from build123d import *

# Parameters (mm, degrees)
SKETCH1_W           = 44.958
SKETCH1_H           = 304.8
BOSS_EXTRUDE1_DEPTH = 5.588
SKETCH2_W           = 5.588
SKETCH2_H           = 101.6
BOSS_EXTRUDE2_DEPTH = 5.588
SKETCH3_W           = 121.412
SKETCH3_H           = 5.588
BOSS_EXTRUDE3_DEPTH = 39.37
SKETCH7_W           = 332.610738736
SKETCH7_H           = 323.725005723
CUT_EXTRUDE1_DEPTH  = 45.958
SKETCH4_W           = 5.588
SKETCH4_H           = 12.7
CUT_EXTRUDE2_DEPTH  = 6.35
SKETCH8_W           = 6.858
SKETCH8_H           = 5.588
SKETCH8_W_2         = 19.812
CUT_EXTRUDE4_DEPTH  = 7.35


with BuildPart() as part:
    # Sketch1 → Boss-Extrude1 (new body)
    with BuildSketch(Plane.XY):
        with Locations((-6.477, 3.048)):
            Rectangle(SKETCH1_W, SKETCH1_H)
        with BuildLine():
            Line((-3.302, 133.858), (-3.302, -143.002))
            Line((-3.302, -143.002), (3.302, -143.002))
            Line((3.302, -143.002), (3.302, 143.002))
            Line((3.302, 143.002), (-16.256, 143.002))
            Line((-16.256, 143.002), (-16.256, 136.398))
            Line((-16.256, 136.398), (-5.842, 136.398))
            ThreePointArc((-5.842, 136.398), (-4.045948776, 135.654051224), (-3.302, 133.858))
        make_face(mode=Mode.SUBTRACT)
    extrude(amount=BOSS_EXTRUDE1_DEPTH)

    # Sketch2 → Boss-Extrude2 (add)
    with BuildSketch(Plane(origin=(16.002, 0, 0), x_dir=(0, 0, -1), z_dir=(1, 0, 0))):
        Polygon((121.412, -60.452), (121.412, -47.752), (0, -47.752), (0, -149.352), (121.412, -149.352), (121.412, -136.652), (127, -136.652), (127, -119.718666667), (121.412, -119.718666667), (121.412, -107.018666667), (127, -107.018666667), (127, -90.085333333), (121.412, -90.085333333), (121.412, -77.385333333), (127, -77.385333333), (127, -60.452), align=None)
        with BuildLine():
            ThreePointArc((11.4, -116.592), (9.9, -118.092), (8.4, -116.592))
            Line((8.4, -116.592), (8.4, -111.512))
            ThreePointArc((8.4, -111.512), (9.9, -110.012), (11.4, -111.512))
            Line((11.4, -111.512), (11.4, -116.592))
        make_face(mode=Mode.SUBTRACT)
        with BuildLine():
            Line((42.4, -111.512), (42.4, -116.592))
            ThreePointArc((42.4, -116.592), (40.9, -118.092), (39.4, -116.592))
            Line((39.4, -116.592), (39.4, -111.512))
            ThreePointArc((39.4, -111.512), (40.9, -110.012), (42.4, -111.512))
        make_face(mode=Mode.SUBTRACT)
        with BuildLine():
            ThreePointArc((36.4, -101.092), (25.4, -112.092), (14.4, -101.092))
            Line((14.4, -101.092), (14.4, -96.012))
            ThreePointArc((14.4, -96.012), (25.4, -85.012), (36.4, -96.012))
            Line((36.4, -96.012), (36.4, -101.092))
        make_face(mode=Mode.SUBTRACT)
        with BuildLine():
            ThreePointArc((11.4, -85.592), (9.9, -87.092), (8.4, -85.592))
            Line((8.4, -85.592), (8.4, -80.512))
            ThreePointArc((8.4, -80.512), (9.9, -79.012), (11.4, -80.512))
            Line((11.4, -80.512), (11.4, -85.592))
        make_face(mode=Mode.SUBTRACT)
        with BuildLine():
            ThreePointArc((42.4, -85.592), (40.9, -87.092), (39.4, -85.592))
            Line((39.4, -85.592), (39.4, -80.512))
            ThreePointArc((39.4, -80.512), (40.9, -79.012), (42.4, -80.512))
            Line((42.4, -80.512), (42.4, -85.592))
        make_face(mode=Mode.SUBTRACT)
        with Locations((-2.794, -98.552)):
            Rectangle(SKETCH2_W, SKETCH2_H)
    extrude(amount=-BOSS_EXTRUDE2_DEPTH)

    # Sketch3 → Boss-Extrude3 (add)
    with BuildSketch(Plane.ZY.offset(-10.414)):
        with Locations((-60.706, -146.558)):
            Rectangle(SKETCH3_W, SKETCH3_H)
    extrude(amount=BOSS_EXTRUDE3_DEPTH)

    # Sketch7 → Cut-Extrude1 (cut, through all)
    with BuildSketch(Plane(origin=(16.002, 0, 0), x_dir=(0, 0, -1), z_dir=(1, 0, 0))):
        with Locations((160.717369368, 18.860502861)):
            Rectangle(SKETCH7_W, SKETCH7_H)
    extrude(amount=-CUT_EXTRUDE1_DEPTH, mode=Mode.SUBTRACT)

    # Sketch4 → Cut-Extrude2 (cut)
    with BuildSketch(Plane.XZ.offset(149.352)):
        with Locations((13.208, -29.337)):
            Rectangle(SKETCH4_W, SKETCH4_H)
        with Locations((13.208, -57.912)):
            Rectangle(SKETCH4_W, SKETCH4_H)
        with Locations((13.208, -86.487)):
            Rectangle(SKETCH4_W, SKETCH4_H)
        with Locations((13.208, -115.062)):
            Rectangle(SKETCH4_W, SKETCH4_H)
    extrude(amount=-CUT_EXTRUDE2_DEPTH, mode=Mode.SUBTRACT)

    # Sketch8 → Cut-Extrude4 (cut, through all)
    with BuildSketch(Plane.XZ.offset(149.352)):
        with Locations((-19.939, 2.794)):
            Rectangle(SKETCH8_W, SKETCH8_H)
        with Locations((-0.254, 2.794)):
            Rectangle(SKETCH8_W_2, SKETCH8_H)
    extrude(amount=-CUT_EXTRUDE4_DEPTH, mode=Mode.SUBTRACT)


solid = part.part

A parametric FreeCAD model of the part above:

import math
import FreeCAD as App
import Part
import Sketcher
from FreeCAD import Vector
Q = App.Units.Quantity


def add_polygon(sketch, points):
    """Adds a closed chain of lines whose ends are joined by coincident constraints."""
    first, n = sketch.GeometryCount, len(points)
    for a, b in zip(points, points[1:] + points[:1]):
        sketch.addGeometry(Part.LineSegment(App.Vector(*a, 0), App.Vector(*b, 0)), False)
    for i in range(n):
        sketch.addConstraint(Sketcher.Constraint("Coincident", first + i, 2, first + (i + 1) % n, 1))

doc = App.newDocument("Part")
body = doc.addObject("PartDesign::Body", "Body")

# Sketch on XY plane
sketch1 = doc.addObject("Sketcher::SketchObject", "Sketch")
body.addObject(sketch1)
sketch1.AttachmentSupport = (doc.XY_Plane, [""])
sketch1.MapMode = "FlatFace"
add_polygon(sketch1, [(-29, 155.4), (-29, -149.4), (16, -149.4), (16, 155.4)])  # lines 0-3
sketch1.addGeometry(Part.LineSegment(Vector(-3.3, -143, 0), Vector(-3.3, 133.9, 0)), False)  # 4
sketch1.addGeometry(Part.ArcOfCircle(Part.Circle(Vector(-5.8, 133.9, 0), Vector(0, 0, 1), 2.5), math.radians(0), math.radians(90)), False)  # 5
sketch1.addGeometry(Part.LineSegment(Vector(-5.8, 136.4, 0), Vector(-16.3, 136.4, 0)), False)  # 6
sketch1.addGeometry(Part.LineSegment(Vector(-16.3, 136.4, 0), Vector(-16.3, 143, 0)), False)  # 7
sketch1.addGeometry(Part.LineSegment(Vector(-16.3, 143, 0), Vector(3.3, 143, 0)), False)  # 8
sketch1.addGeometry(Part.LineSegment(Vector(3.3, 143, 0), Vector(3.3, -143, 0)), False)  # 9
sketch1.addGeometry(Part.LineSegment(Vector(3.3, -143, 0), Vector(-3.3, -143, 0)), False)  # 10
sketch1.addConstraint(Sketcher.Constraint("Tangent", 4, 2, 5, 1))
sketch1.addConstraint(Sketcher.Constraint("Tangent", 5, 2, 6, 1))
sketch1.addConstraint(Sketcher.Constraint("Coincident", 6, 2, 7, 1))
sketch1.addConstraint(Sketcher.Constraint("Coincident", 7, 2, 8, 1))
sketch1.addConstraint(Sketcher.Constraint("Coincident", 8, 2, 9, 1))
sketch1.addConstraint(Sketcher.Constraint("Coincident", 9, 2, 10, 1))
sketch1.addConstraint(Sketcher.Constraint("Coincident", 10, 2, 4, 1))
sketch1.addConstraint(Sketcher.Constraint("Vertical", 0))
sketch1.addConstraint(Sketcher.Constraint("Horizontal", 1))
sketch1.addConstraint(Sketcher.Constraint("Vertical", 2))
sketch1.addConstraint(Sketcher.Constraint("Horizontal", 3))
sketch1.addConstraint(Sketcher.Constraint("Vertical", 4))
sketch1.addConstraint(Sketcher.Constraint("Horizontal", 6))
sketch1.addConstraint(Sketcher.Constraint("Vertical", 7))
sketch1.addConstraint(Sketcher.Constraint("Horizontal", 8))
sketch1.addConstraint(Sketcher.Constraint("Vertical", 9))
sketch1.addConstraint(Sketcher.Constraint("Horizontal", 10))
sketch1.addConstraint(Sketcher.Constraint("Symmetric", 8, 2, 10, 2, -1, 1))
sketch1.addConstraint(Sketcher.Constraint("Equal", 10, 7))
sketch1.addConstraint(Sketcher.Constraint("Radius", 5, Q("0.1 in")))
sketch1.addConstraint(Sketcher.Constraint("DistanceY", 0, 2, 0, 1, Q("12 in")))
sketch1.addConstraint(Sketcher.Constraint("DistanceY", 4, 1, 4, 2, Q("10.9 in")))
sketch1.addConstraint(Sketcher.Constraint("DistanceX", 1, 1, 1, 2, Q("1.77 in")))
sketch1.addConstraint(Sketcher.Constraint("DistanceX", 6, 2, 6, 1, Q("0.41 in")))
sketch1.addConstraint(Sketcher.Constraint("DistanceX", 8, 1, 8, 2, Q("0.77 in")))
sketch1.addConstraint(Sketcher.Constraint("DistanceX", 3, 2, 6, 2, Q("0.5 in")))
sketch1.addConstraint(Sketcher.Constraint("DistanceY", 0, 2, -1, 1, Q("5.88 in")))
pad1 = doc.addObject("PartDesign::Pad", "Pad")
body.addObject(pad1)
pad1.Profile = sketch1
pad1.Length = Q("0.22 in")

# Sketch on YZ plane
sketch2 = doc.addObject("Sketcher::SketchObject", "Sketch001")
body.addObject(sketch2)
sketch2.AttachmentSupport = (doc.YZ_Plane, [""])
sketch2.MapMode = "FlatFace"
sketch2.AttachmentOffset = App.Placement(Vector(0, 0, 0.63 * 25.4), App.Rotation())
add_polygon(sketch2, [(-60.5, -121.4), (-47.8, -121.4), (-47.8, 5.6), (-149.4, 5.6), (-149.4, -121.4), (-136.7, -121.4), (-136.7, -127), (-119.7, -127), (-119.7, -121.4), (-107, -121.4), (-107, -127), (-90.1, -127), (-90.1, -121.4), (-77.4, -121.4), (-77.4, -127), (-60.5, -127)])  # lines 0-15
sketch2.addGeometry(Part.LineSegment(Vector(-111.5, -11.4, 0), Vector(-116.6, -11.4, 0)), False)  # 16
sketch2.addGeometry(Part.ArcOfCircle(Part.Circle(Vector(-116.6, -9.9, 0), Vector(0, 0, 1), 1.5), math.radians(90), math.radians(270)), False)  # 17
sketch2.addGeometry(Part.LineSegment(Vector(-116.6, -8.4, 0), Vector(-111.5, -8.4, 0)), False)  # 18
sketch2.addGeometry(Part.ArcOfCircle(Part.Circle(Vector(-111.5, -9.9, 0), Vector(0, 0, 1), 1.5), math.radians(-90), math.radians(90)), False)  # 19
sketch2.addGeometry(Part.ArcOfCircle(Part.Circle(Vector(-111.5, -40.9, 0), Vector(0, 0, 1), 1.5), math.radians(-90), math.radians(90)), False)  # 20
sketch2.addGeometry(Part.LineSegment(Vector(-111.5, -42.4, 0), Vector(-116.6, -42.4, 0)), False)  # 21
sketch2.addGeometry(Part.ArcOfCircle(Part.Circle(Vector(-116.6, -40.9, 0), Vector(0, 0, 1), 1.5), math.radians(90), math.radians(270)), False)  # 22
sketch2.addGeometry(Part.LineSegment(Vector(-116.6, -39.4, 0), Vector(-111.5, -39.4, 0)), False)  # 23
sketch2.addGeometry(Part.LineSegment(Vector(-80.5, -11.4, 0), Vector(-85.6, -11.4, 0)), False)  # 24
sketch2.addGeometry(Part.ArcOfCircle(Part.Circle(Vector(-85.6, -9.9, 0), Vector(0, 0, 1), 1.5), math.radians(90), math.radians(270)), False)  # 25
sketch2.addGeometry(Part.LineSegment(Vector(-85.6, -8.4, 0), Vector(-80.5, -8.4, 0)), False)  # 26
sketch2.addGeometry(Part.ArcOfCircle(Part.Circle(Vector(-80.5, -9.9, 0), Vector(0, 0, 1), 1.5), math.radians(-90), math.radians(90)), False)  # 27
sketch2.addGeometry(Part.LineSegment(Vector(-96, -36.4, 0), Vector(-101.1, -36.4, 0)), False)  # 28
sketch2.addGeometry(Part.ArcOfCircle(Part.Circle(Vector(-101.1, -25.4, 0), Vector(0, 0, 1), 11), math.radians(90), math.radians(270)), False)  # 29
sketch2.addGeometry(Part.LineSegment(Vector(-101.1, -14.4, 0), Vector(-96, -14.4, 0)), False)  # 30
sketch2.addGeometry(Part.ArcOfCircle(Part.Circle(Vector(-96, -25.4, 0), Vector(0, 0, 1), 11), math.radians(-90), math.radians(90)), False)  # 31
sketch2.addGeometry(Part.LineSegment(Vector(-80.5, -42.4, 0), Vector(-85.6, -42.4, 0)), False)  # 32
sketch2.addGeometry(Part.ArcOfCircle(Part.Circle(Vector(-85.6, -40.9, 0), Vector(0, 0, 1), 1.5), math.radians(90), math.radians(270)), False)  # 33
sketch2.addGeometry(Part.LineSegment(Vector(-85.6, -39.4, 0), Vector(-80.5, -39.4, 0)), False)  # 34
sketch2.addGeometry(Part.ArcOfCircle(Part.Circle(Vector(-80.5, -40.9, 0), Vector(0, 0, 1), 1.5), math.radians(-90), math.radians(90)), False)  # 35
sketch2.addConstraint(Sketcher.Constraint("Tangent", 16, 2, 17, 2))
sketch2.addConstraint(Sketcher.Constraint("Tangent", 17, 1, 18, 1))
sketch2.addConstraint(Sketcher.Constraint("Tangent", 18, 2, 19, 2))
sketch2.addConstraint(Sketcher.Constraint("Tangent", 19, 1, 16, 1))
sketch2.addConstraint(Sketcher.Constraint("Tangent", 20, 1, 21, 1))
sketch2.addConstraint(Sketcher.Constraint("Tangent", 21, 2, 22, 2))
sketch2.addConstraint(Sketcher.Constraint("Tangent", 22, 1, 23, 1))
sketch2.addConstraint(Sketcher.Constraint("Tangent", 23, 2, 20, 2))
sketch2.addConstraint(Sketcher.Constraint("Tangent", 24, 2, 25, 2))
sketch2.addConstraint(Sketcher.Constraint("Tangent", 25, 1, 26, 1))
sketch2.addConstraint(Sketcher.Constraint("Tangent", 26, 2, 27, 2))
sketch2.addConstraint(Sketcher.Constraint("Tangent", 27, 1, 24, 1))
sketch2.addConstraint(Sketcher.Constraint("Tangent", 28, 2, 29, 2))
sketch2.addConstraint(Sketcher.Constraint("Tangent", 29, 1, 30, 1))
sketch2.addConstraint(Sketcher.Constraint("Tangent", 30, 2, 31, 2))
sketch2.addConstraint(Sketcher.Constraint("Tangent", 31, 1, 28, 1))
sketch2.addConstraint(Sketcher.Constraint("Tangent", 32, 2, 33, 2))
sketch2.addConstraint(Sketcher.Constraint("Tangent", 33, 1, 34, 1))
sketch2.addConstraint(Sketcher.Constraint("Tangent", 34, 2, 35, 2))
sketch2.addConstraint(Sketcher.Constraint("Tangent", 35, 1, 32, 1))
sketch2.addConstraint(Sketcher.Constraint("Horizontal", 0))
sketch2.addConstraint(Sketcher.Constraint("Vertical", 1))
sketch2.addConstraint(Sketcher.Constraint("Horizontal", 2))
sketch2.addConstraint(Sketcher.Constraint("Vertical", 3))
sketch2.addConstraint(Sketcher.Constraint("Horizontal", 4))
sketch2.addConstraint(Sketcher.Constraint("Vertical", 5))
sketch2.addConstraint(Sketcher.Constraint("Horizontal", 6))
sketch2.addConstraint(Sketcher.Constraint("Vertical", 7))
sketch2.addConstraint(Sketcher.Constraint("Horizontal", 8))
sketch2.addConstraint(Sketcher.Constraint("Vertical", 9))
sketch2.addConstraint(Sketcher.Constraint("Horizontal", 10))
sketch2.addConstraint(Sketcher.Constraint("Vertical", 11))
sketch2.addConstraint(Sketcher.Constraint("Horizontal", 12))
sketch2.addConstraint(Sketcher.Constraint("Vertical", 13))
sketch2.addConstraint(Sketcher.Constraint("Horizontal", 14))
sketch2.addConstraint(Sketcher.Constraint("Vertical", 15))
sketch2.addConstraint(Sketcher.Constraint("Horizontal", 16))
sketch2.addConstraint(Sketcher.Constraint("Horizontal", 18))
sketch2.addConstraint(Sketcher.Constraint("Horizontal", 21))
sketch2.addConstraint(Sketcher.Constraint("Horizontal", 23))
sketch2.addConstraint(Sketcher.Constraint("Horizontal", 24))
sketch2.addConstraint(Sketcher.Constraint("Horizontal", 26))
sketch2.addConstraint(Sketcher.Constraint("Horizontal", 28))
sketch2.addConstraint(Sketcher.Constraint("Horizontal", 30))
sketch2.addConstraint(Sketcher.Constraint("Horizontal", 32))
sketch2.addConstraint(Sketcher.Constraint("Horizontal", 34))
sketch2.addConstraint(Sketcher.Constraint("Equal", 19, 20))
sketch2.addConstraint(Sketcher.Constraint("Equal", 22, 25))
sketch2.addConstraint(Sketcher.Constraint("Equal", 27, 33))
sketch2.addConstraint(Sketcher.Constraint("Horizontal", 19, 3, 25, 3))
sketch2.addConstraint(Sketcher.Constraint("Horizontal", 22, 3, 33, 3))
sketch2.addConstraint(Sketcher.Constraint("Horizontal", 0, 2, 3, 2))
sketch2.addConstraint(Sketcher.Constraint("Horizontal", 4, 2, 7, 2))
sketch2.addConstraint(Sketcher.Constraint("Horizontal", 6, 2, 9, 2))
sketch2.addConstraint(Sketcher.Constraint("Horizontal", 8, 2, 11, 2))
sketch2.addConstraint(Sketcher.Constraint("Horizontal", 10, 2, 13, 2))
sketch2.addConstraint(Sketcher.Constraint("Vertical", 19, 3, 20, 3))
sketch2.addConstraint(Sketcher.Constraint("Vertical", 17, 3, 22, 3))
sketch2.addConstraint(Sketcher.Constraint("Vertical", 25, 3, 33, 3))
sketch2.addConstraint(Sketcher.Constraint("Vertical", 27, 3, 35, 3))
sketch2.addConstraint(Sketcher.Constraint("Equal", 0, 4))
sketch2.addConstraint(Sketcher.Constraint("Equal", 4, 8))
sketch2.addConstraint(Sketcher.Constraint("Equal", 6, 10))
sketch2.addConstraint(Sketcher.Constraint("Equal", 8, 12))
sketch2.addConstraint(Sketcher.Constraint("Equal", 10, 14))
sketch2.addConstraint(Sketcher.Constraint("Equal", 23, 24))
sketch2.addConstraint(Sketcher.Constraint("Equal", 26, 28))
sketch2.addConstraint(Sketcher.Constraint("DistanceX", 2, 2, 2, 1, Q("4 in")))
sketch2.addConstraint(Sketcher.Constraint("DistanceY", 1, 1, 1, 2, Q("5 in")))
sketch2.addConstraint(Sketcher.Constraint("DistanceX", 0, 1, 0, 2, Q("0.5 in")))
sketch2.addConstraint(Sketcher.Constraint("DistanceX", 16, 2, 16, 1, Q("0.2 in")))
sketch2.addConstraint(Sketcher.Constraint("DistanceY", 29, 3, -1, 1, Q("1 in")))
sketch2.addConstraint(Sketcher.Constraint("DistanceY", 5, 2, -1, 1, Q("5 in")))
sketch2.addConstraint(Sketcher.Constraint("DistanceY", 5, 2, 5, 1, Q("0.22 in")))
sketch2.addConstraint(Sketcher.Constraint("DistanceX", 31, 3, 0, 2, Q("1.9 in")))
sketch2.addConstraint(Sketcher.Constraint("DistanceX", 29, 3, -1, 1, Q("3.98 in")))
sketch2.addConstraint(Sketcher.Constraint("Radius", 17, 1.5))
sketch2.addConstraint(Sketcher.Constraint("Radius", 29, 11.0))
sketch2.addConstraint(Sketcher.Constraint("DistanceX", 17, 3, -1, 1, 116.592))
sketch2.addConstraint(Sketcher.Constraint("DistanceY", 17, 3, -1, 1, 9.9))
sketch2.addConstraint(Sketcher.Constraint("DistanceY", 20, 3, -1, 1, 40.9))
sketch2.addConstraint(Sketcher.Constraint("DistanceX", 25, 3, -1, 1, 85.592))
pad2 = doc.addObject("PartDesign::Pad", "Pad001")
body.addObject(pad2)
pad2.Profile = sketch2
pad2.Length = Q("0.22 in")
pad2.Reversed = True

# Sketch on YZ plane
sketch3 = doc.addObject("Sketcher::SketchObject", "Sketch002")
body.addObject(sketch3)
sketch3.AttachmentSupport = (doc.YZ_Plane, [""])
sketch3.MapMode = "FlatFace"
sketch3.AttachmentOffset = App.Placement(Vector(0, 0, 0.41 * 25.4), App.Rotation())
add_polygon(sketch3, [(-144, -121), (-149, -121), (-149, 0), (-144, 0)])  # lines 0-3
sketch3.addConstraint(Sketcher.Constraint("Horizontal", 0))
sketch3.addConstraint(Sketcher.Constraint("Vertical", 1))
sketch3.addConstraint(Sketcher.Constraint("Horizontal", 2))
sketch3.addConstraint(Sketcher.Constraint("Vertical", 3))
sketch3.addConstraint(Sketcher.Constraint("PointOnObject", 1, 2, -1))
sketch3.addConstraint(Sketcher.Constraint("DistanceX", 0, 2, 0, 1, Q("0.22 in")))
sketch3.addConstraint(Sketcher.Constraint("DistanceY", 1, 1, 1, 2, Q("4.78 in")))
sketch3.addConstraint(Sketcher.Constraint("DistanceX", 0, 2, -1, 1, Q("5.88 in")))
pad3 = doc.addObject("PartDesign::Pad", "Pad002")
body.addObject(pad3)
pad3.Profile = sketch3
pad3.Length = Q("1.55 in")
pad3.Reversed = True

# Sketch on YZ plane
sketch4 = doc.addObject("Sketcher::SketchObject", "Sketch003")
body.addObject(sketch4)
sketch4.AttachmentSupport = (doc.YZ_Plane, [""])
sketch4.MapMode = "FlatFace"
sketch4.AttachmentOffset = App.Placement(Vector(0, 0, 0.63 * 25.4), App.Rotation())
add_polygon(sketch4, [(181, 6), (-143, 6), (-143, -327), (181, -327)])  # lines 0-3
sketch4.addConstraint(Sketcher.Constraint("Horizontal", 0))
sketch4.addConstraint(Sketcher.Constraint("Vertical", 1))
sketch4.addConstraint(Sketcher.Constraint("Horizontal", 2))
sketch4.addConstraint(Sketcher.Constraint("Vertical", 3))
sketch4.addConstraint(Sketcher.Constraint("DistanceX", 0, 2, -1, 1, Q("5.63 in")))
sketch4.addConstraint(Sketcher.Constraint("DistanceY", -1, 1, 0, 2, Q("0.22 in")))
sketch4.addConstraint(Sketcher.Constraint("DistanceY", 1, 2, 1, 1, 332.610739))
sketch4.addConstraint(Sketcher.Constraint("DistanceX", 0, 2, 0, 1, 323.725006))
pocket1 = doc.addObject("PartDesign::Pocket", "Pocket")
body.addObject(pocket1)
pocket1.Profile = sketch4
pocket1.Type = "ThroughAll"

# Sketch on XZ plane
sketch5 = doc.addObject("Sketcher::SketchObject", "Sketch004")
body.addObject(sketch5)
sketch5.AttachmentSupport = (doc.XZ_Plane, [""])
sketch5.MapMode = "FlatFace"
sketch5.AttachmentOffset = App.Placement(Vector(0, 0, 5.88 * 25.4), App.Rotation())
add_polygon(sketch5, [(10, -23), (10, -36), (16, -36), (16, -23)])  # lines 0-3
add_polygon(sketch5, [(10, -52), (10, -64), (16, -64), (16, -52)])  # lines 4-7
add_polygon(sketch5, [(10, -80), (10, -93), (16, -93), (16, -80)])  # lines 8-11
add_polygon(sketch5, [(10, -109), (10, -121), (16, -121), (16, -109)])  # lines 12-15
sketch5.addConstraint(Sketcher.Constraint("Vertical", 0))
sketch5.addConstraint(Sketcher.Constraint("Horizontal", 1))
sketch5.addConstraint(Sketcher.Constraint("Vertical", 2))
sketch5.addConstraint(Sketcher.Constraint("Horizontal", 3))
sketch5.addConstraint(Sketcher.Constraint("Vertical", 4))
sketch5.addConstraint(Sketcher.Constraint("Horizontal", 5))
sketch5.addConstraint(Sketcher.Constraint("Vertical", 6))
sketch5.addConstraint(Sketcher.Constraint("Horizontal", 7))
sketch5.addConstraint(Sketcher.Constraint("Vertical", 8))
sketch5.addConstraint(Sketcher.Constraint("Horizontal", 9))
sketch5.addConstraint(Sketcher.Constraint("Vertical", 10))
sketch5.addConstraint(Sketcher.Constraint("Horizontal", 11))
sketch5.addConstraint(Sketcher.Constraint("Vertical", 12))
sketch5.addConstraint(Sketcher.Constraint("Horizontal", 13))
sketch5.addConstraint(Sketcher.Constraint("Vertical", 14))
sketch5.addConstraint(Sketcher.Constraint("Horizontal", 15))
sketch5.addConstraint(Sketcher.Constraint("Vertical", 3, 2, 4, 2))
sketch5.addConstraint(Sketcher.Constraint("Vertical", 2, 2, 5, 2))
sketch5.addConstraint(Sketcher.Constraint("Vertical", 7, 2, 8, 2))
sketch5.addConstraint(Sketcher.Constraint("Vertical", 6, 2, 9, 2))
sketch5.addConstraint(Sketcher.Constraint("Vertical", 11, 2, 12, 2))
sketch5.addConstraint(Sketcher.Constraint("Vertical", 10, 2, 13, 2))
sketch5.addConstraint(Sketcher.Constraint("Equal", 2, 4))
sketch5.addConstraint(Sketcher.Constraint("Equal", 6, 8))
sketch5.addConstraint(Sketcher.Constraint("Equal", 10, 12))
sketch5.addConstraint(Sketcher.Constraint("DistanceY", 0, 2, 0, 1, Q("0.5 in")))
sketch5.addConstraint(Sketcher.Constraint("DistanceX", 1, 1, 1, 2, Q("0.22 in")))
sketch5.addConstraint(Sketcher.Constraint("DistanceX", -1, 1, 0, 2, Q("0.41 in")))
sketch5.addConstraint(Sketcher.Constraint("DistanceY", 4, 2, -1, 1, Q("2.53 in")))
sketch5.addConstraint(Sketcher.Constraint("DistanceY", 12, 2, -1, 1, Q("4.78 in")))
sketch5.addConstraint(Sketcher.Constraint("DistanceY", 8, 2, 0, 2, Q("2.25 in")))
sketch5.addConstraint(Sketcher.Constraint("DistanceY", 0, 2, -1, 1, Q("1.405 in")))
pocket2 = doc.addObject("PartDesign::Pocket", "Pocket001")
body.addObject(pocket2)
pocket2.Profile = sketch5
pocket2.Length = Q("0.25 in")

# Sketch on XZ plane
sketch6 = doc.addObject("Sketcher::SketchObject", "Sketch005")
body.addObject(sketch6)
sketch6.AttachmentSupport = (doc.XZ_Plane, [""])
sketch6.MapMode = "FlatFace"
sketch6.AttachmentOffset = App.Placement(Vector(0, 0, 5.88 * 25.4), App.Rotation())
add_polygon(sketch6, [(-23, 6), (-23, 0), (-17, 0), (-17, 6)])  # lines 0-3
add_polygon(sketch6, [(-10, 6), (-10, 0), (10, 0), (10, 6)])  # lines 4-7
sketch6.addConstraint(Sketcher.Constraint("Vertical", 0))
sketch6.addConstraint(Sketcher.Constraint("Horizontal", 1))
sketch6.addConstraint(Sketcher.Constraint("Vertical", 2))
sketch6.addConstraint(Sketcher.Constraint("Horizontal", 3))
sketch6.addConstraint(Sketcher.Constraint("Vertical", 4))
sketch6.addConstraint(Sketcher.Constraint("Horizontal", 5))
sketch6.addConstraint(Sketcher.Constraint("Vertical", 6))
sketch6.addConstraint(Sketcher.Constraint("Horizontal", 7))
sketch6.addConstraint(Sketcher.Constraint("PointOnObject", 0, 2, -1))
sketch6.addConstraint(Sketcher.Constraint("PointOnObject", 4, 2, -1))
sketch6.addConstraint(Sketcher.Constraint("Horizontal", 3, 2, 6, 2))
sketch6.addConstraint(Sketcher.Constraint("DistanceX", 1, 1, 1, 2, Q("0.27 in")))
sketch6.addConstraint(Sketcher.Constraint("DistanceX", 5, 1, 5, 2, Q("0.78 in")))
sketch6.addConstraint(Sketcher.Constraint("DistanceY", 0, 2, 0, 1, Q("0.22 in")))
sketch6.addConstraint(Sketcher.Constraint("DistanceX", 4, 2, -1, 1, Q("0.4 in")))
sketch6.addConstraint(Sketcher.Constraint("DistanceX", 0, 2, 5, 2, Q("1.3 in")))
pocket3 = doc.addObject("PartDesign::Pocket", "Pocket002")
body.addObject(pocket3)
pocket3.Profile = sketch6
pocket3.Type = "ThroughAll"

doc.recompute()
